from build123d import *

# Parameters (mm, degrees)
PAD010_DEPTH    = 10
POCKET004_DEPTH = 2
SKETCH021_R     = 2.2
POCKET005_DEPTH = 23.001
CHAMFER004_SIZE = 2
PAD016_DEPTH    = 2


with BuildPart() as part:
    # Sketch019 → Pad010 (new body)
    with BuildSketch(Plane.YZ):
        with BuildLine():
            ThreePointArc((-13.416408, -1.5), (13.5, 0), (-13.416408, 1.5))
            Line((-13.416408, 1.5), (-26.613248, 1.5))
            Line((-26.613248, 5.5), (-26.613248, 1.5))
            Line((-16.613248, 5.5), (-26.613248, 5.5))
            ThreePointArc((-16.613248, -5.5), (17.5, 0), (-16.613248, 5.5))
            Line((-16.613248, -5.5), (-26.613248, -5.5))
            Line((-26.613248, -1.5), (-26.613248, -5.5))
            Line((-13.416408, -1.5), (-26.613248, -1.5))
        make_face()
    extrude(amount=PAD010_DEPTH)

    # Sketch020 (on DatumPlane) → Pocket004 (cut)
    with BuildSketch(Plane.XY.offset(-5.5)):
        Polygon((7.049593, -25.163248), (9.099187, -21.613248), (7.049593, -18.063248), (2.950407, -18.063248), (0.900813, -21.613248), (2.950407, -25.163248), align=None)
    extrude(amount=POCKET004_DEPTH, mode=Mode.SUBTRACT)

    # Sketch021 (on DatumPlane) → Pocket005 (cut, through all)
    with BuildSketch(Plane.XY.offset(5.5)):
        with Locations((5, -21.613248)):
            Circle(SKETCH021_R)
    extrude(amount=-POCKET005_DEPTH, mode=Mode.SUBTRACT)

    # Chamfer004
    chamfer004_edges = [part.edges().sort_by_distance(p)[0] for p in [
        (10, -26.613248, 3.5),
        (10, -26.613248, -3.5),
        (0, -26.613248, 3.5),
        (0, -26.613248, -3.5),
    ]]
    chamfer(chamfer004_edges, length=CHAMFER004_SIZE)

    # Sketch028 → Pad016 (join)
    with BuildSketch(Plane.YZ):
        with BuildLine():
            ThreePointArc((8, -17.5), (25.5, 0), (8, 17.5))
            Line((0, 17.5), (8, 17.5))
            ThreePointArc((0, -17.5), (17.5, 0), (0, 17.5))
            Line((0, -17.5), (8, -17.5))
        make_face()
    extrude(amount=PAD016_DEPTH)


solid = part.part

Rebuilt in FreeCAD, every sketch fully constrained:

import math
import FreeCAD as App
import Part
import Sketcher
from FreeCAD import Vector
Q = App.Units.Quantity


def edges_at(feature, points):
    """Names of the edges that pass closest to the given points."""
    edges = feature.Shape.Edges
    near = lambda p: min(range(len(edges)), key=lambda i: edges[i].distToShape(Part.Vertex(*p))[0])
    return sorted({f"Edge{near(p) + 1}" for p in points})

doc = App.newDocument("Part")
body = doc.addObject("PartDesign::Body", "Body")

# Sketch on YZ plane
sketch1 = body.newObject("Sketcher::SketchObject", "Sketch")
sketch1.AttachmentSupport = (doc.getObject("YZ_Plane"), [""])
sketch1.MapMode = "FlatFace"
sketch1.addGeometry(Part.ArcOfCircle(Part.Circle(Vector(0, 0, 0), Vector(0, 0, 1), 13.5), math.radians(-174), math.radians(174)), False)
sketch1.addGeometry(Part.LineSegment(Vector(-13.4, -1.5, 0), Vector(-26.6, -1.5, 0)), False)
sketch1.addGeometry(Part.LineSegment(Vector(-26.6, -1.5, 0), Vector(-26.6, -5.5, 0)), False)
sketch1.addGeometry(Part.LineSegment(Vector(-26.6, -5.5, 0), Vector(-16.6, -5.5, 0)), False)
sketch1.addGeometry(Part.ArcOfCircle(Part.Circle(Vector(0, 0, 0), Vector(0, 0, 1), 17.5), math.radians(-162), math.radians(162)), False)
sketch1.addGeometry(Part.LineSegment(Vector(-16.6, 5.5, 0), Vector(-26.6, 5.5, 0)), False)
sketch1.addGeometry(Part.LineSegment(Vector(-26.6, 5.5, 0), Vector(-26.6, 1.5, 0)), False)
sketch1.addGeometry(Part.LineSegment(Vector(-26.6, 1.5, 0), Vector(-13.4, 1.5, 0)), False)
sketch1.addConstraint(Sketcher.Constraint("Coincident", 0, 1, 1, 1))
sketch1.addConstraint(Sketcher.Constraint("Coincident", 1, 2, 2, 1))
sketch1.addConstraint(Sketcher.Constraint("Coincident", 2, 2, 3, 1))
sketch1.addConstraint(Sketcher.Constraint("Coincident", 3, 2, 4, 1))
sketch1.addConstraint(Sketcher.Constraint("Coincident", 4, 2, 5, 1))
sketch1.addConstraint(Sketcher.Constraint("Coincident", 5, 2, 6, 1))
sketch1.addConstraint(Sketcher.Constraint("Coincident", 6, 2, 7, 1))
sketch1.addConstraint(Sketcher.Constraint("Coincident", 7, 2, 0, 2))
sketch1.addConstraint(Sketcher.Constraint("Horizontal", 1))
sketch1.addConstraint(Sketcher.Constraint("Vertical", 2))
sketch1.addConstraint(Sketcher.Constraint("Horizontal", 3))
sketch1.addConstraint(Sketcher.Constraint("Horizontal", 5))
sketch1.addConstraint(Sketcher.Constraint("Vertical", 6))
sketch1.addConstraint(Sketcher.Constraint("Horizontal", 7))
sketch1.addConstraint(Sketcher.Constraint("Coincident", 0, 3, -1, 1))
sketch1.addConstraint(Sketcher.Constraint("Coincident", 4, 3, -1, 1))
sketch1.addConstraint(Sketcher.Constraint("Symmetric", 2, 2, 5, 2, -1))
sketch1.addConstraint(Sketcher.Constraint("Vertical", 0, 1, 7, 2))
sketch1.addConstraint(Sketcher.Constraint("Radius", 0, Q("13.5 mm")))
sketch1.addConstraint(Sketcher.Constraint("Radius", 4, Q("17.5 mm")))
sketch1.addConstraint(Sketcher.Constraint("DistanceX", 3, 1, 3, 2, Q("10 mm")))
sketch1.addConstraint(Sketcher.Constraint("DistanceY", 2, 2, 2, 1, Q("4 mm")))
sketch1.addConstraint(Sketcher.Constraint("DistanceY", 0, 1, 4, 2, Q("7 mm")))
pad1 = body.newObject("PartDesign::Pad", "Pad")
pad1.Profile = sketch1
pad1.Length = 10

# Sketch on XY plane
sketch2 = body.newObject("Sketcher::SketchObject", "Sketch001")
sketch2.AttachmentSupport = (doc.getObject("XY_Plane"), [""])
sketch2.MapMode = "FlatFace"
sketch2.AttachmentOffset = App.Placement(Vector(0, 0, -5.5), App.Rotation())
sketch2.addGeometry(Part.LineSegment(Vector(7, -25.2, 0), Vector(9.1, -21.6, 0)), False)
sketch2.addGeometry(Part.LineSegment(Vector(9.1, -21.6, 0), Vector(7, -18.1, 0)), False)
sketch2.addGeometry(Part.LineSegment(Vector(7, -18.1, 0), Vector(3, -18.1, 0)), False)
sketch2.addGeometry(Part.LineSegment(Vector(3, -18.1, 0), Vector(0.9, -21.6, 0)), False)
sketch2.addGeometry(Part.LineSegment(Vector(0.9, -21.6, 0), Vector(3, -25.2, 0)), False)
sketch2.addGeometry(Part.LineSegment(Vector(3, -25.2, 0), Vector(7, -25.2, 0)), False)
sketch2.addConstraint(Sketcher.Constraint("Coincident", 0, 2, 1, 1))
sketch2.addConstraint(Sketcher.Constraint("Coincident", 1, 2, 2, 1))
sketch2.addConstraint(Sketcher.Constraint("Coincident", 2, 2, 3, 1))
sketch2.addConstraint(Sketcher.Constraint("Coincident", 3, 2, 4, 1))
sketch2.addConstraint(Sketcher.Constraint("Coincident", 4, 2, 5, 1))
sketch2.addConstraint(Sketcher.Constraint("Coincident", 5, 2, 0, 1))
sketch2.addConstraint(Sketcher.Constraint("Horizontal", 2))
sketch2.addConstraint(Sketcher.Constraint("Horizontal", 5))
sketch2.addConstraint(Sketcher.Constraint("Parallel", 0, 3))
sketch2.addConstraint(Sketcher.Constraint("Parallel", 1, 4))
sketch2.addConstraint(Sketcher.Constraint("Horizontal", 0, 2, 3, 2))
sketch2.addConstraint(Sketcher.Constraint("Vertical", 2, 2, 4, 2))
sketch2.addConstraint(Sketcher.Constraint("Vertical", 1, 2, 5, 2))
sketch2.addConstraint(Sketcher.Constraint("Angle", 0, Q("59.999993 deg")))
sketch2.addConstraint(Sketcher.Constraint("DistanceY", 4, 2, 2, 2, Q("7.1 mm")))
sketch2.addConstraint(Sketcher.Constraint("DistanceX", 2, 2, 2, 1, Q("4.099186 mm")))
sketch2.addConstraint(Sketcher.Constraint("DistanceY", 1, 2, -1, 1, Q("18.063248 mm")))
sketch2.addConstraint(Sketcher.Constraint("DistanceX", -1, 1, 0, 2, Q("9.099187 mm")))
pocket1 = body.newObject("PartDesign::Pocket", "Pocket")
pocket1.Profile = sketch2
pocket1.Length = 2
pocket1.Reversed = True

# Sketch on XY plane
sketch3 = body.newObject("Sketcher::SketchObject", "Sketch002")
sketch3.AttachmentSupport = (doc.getObject("XY_Plane"), [""])
sketch3.MapMode = "FlatFace"
sketch3.AttachmentOffset = App.Placement(Vector(0, 0, 5.5), App.Rotation())
sketch3.addGeometry(Part.Circle(Vector(5, -21.6, 0), Vector(0, 0, 1), 2.2), False)
sketch3.addConstraint(Sketcher.Constraint("Diameter", 0, Q("4.4 mm")))
sketch3.addConstraint(Sketcher.Constraint("DistanceX", -1, 1, 0, 3, Q("5 mm")))
sketch3.addConstraint(Sketcher.Constraint("DistanceY", 0, 3, -1, 1, Q("21.613248 mm")))
pocket2 = body.newObject("PartDesign::Pocket", "Pocket001")
pocket2.Profile = sketch3
pocket2.Type = "ThroughAll"
doc.recompute()

chamfer = body.newObject("PartDesign::Chamfer", "Chamfer")
chamfer.Base = (pocket2, edges_at(pocket2, [
    (10, -26.613, 3.5),
    (10, -26.613, -3.5),
    (0, -26.613, 3.5),
    (0, -26.613, -3.5),
]))
chamfer.Size = 2

# Sketch on YZ plane
sketch4 = body.newObject("Sketcher::SketchObject", "Sketch003")
sketch4.AttachmentSupport = (doc.getObject("YZ_Plane"), [""])
sketch4.MapMode = "FlatFace"
sketch4.addGeometry(Part.ArcOfCircle(Part.Circle(Vector(8, 0, 0), Vector(0, 0, 1), 18), math.radians(-90), math.radians(90)), False)
sketch4.addGeometry(Part.LineSegment(Vector(8, 18, 0), Vector(0, 18, 0)), False)
sketch4.addGeometry(Part.ArcOfCircle(Part.Circle(Vector(0, 0, 0), Vector(0, 0, 1), 18), math.radians(-90), math.radians(90)), False)
sketch4.addGeometry(Part.LineSegment(Vector(0, -18, 0), Vector(8, -18, 0)), False)
sketch4.addConstraint(Sketcher.Constraint("Tangent", 0, 2, 1, 1))
sketch4.addConstraint(Sketcher.Constraint("Tangent", 1, 2, 2, 2))
sketch4.addConstraint(Sketcher.Constraint("Tangent", 2, 1, 3, 1))
sketch4.addConstraint(Sketcher.Constraint("Tangent", 3, 2, 0, 1))
sketch4.addConstraint(Sketcher.Constraint("Horizontal", 1))
sketch4.addConstraint(Sketcher.Constraint("Horizontal", 3))
sketch4.addConstraint(Sketcher.Constraint("Coincident", 2, 3, -1, 1))
sketch4.addConstraint(Sketcher.Constraint("Radius", 0, Q("17.5 mm")))
sketch4.addConstraint(Sketcher.Constraint("DistanceX", 1, 2, 1, 1, Q("8 mm")))
pad2 = body.newObject("PartDesign::Pad", "Pad001")
pad2.Profile = sketch4
pad2.Length = 2

doc.recompute()
